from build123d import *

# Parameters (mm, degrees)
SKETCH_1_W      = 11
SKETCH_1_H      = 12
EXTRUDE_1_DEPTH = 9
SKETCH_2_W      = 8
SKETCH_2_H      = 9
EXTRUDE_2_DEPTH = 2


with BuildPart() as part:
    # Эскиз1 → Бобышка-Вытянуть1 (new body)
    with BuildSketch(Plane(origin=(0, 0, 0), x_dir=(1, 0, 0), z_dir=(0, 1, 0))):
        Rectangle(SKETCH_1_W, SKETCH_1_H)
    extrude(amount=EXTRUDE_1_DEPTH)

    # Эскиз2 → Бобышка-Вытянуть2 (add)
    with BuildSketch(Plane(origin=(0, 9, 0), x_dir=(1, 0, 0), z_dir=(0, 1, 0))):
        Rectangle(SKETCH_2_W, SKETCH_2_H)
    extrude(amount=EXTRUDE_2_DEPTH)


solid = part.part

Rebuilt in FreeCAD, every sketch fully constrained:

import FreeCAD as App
import Part
import Sketcher
Q = App.Units.Quantity


def add_polygon(sketch, points):
    """Adds a closed chain of lines whose ends are joined by coincident constraints."""
    first, n = sketch.GeometryCount, len(points)
    for a, b in zip(points, points[1:] + points[:1]):
        sketch.addGeometry(Part.LineSegment(App.Vector(*a, 0), App.Vector(*b, 0)), False)
    for i in range(n):
        sketch.addConstraint(Sketcher.Constraint("Coincident", first + i, 2, first + (i + 1) % n, 1))

doc = App.newDocument("Part")
body = doc.addObject("PartDesign::Body", "Body")

# Sketch on XZ plane
sketch1 = body.newObject("Sketcher::SketchObject", "Sketch")
sketch1.AttachmentSupport = (doc.getObject("XZ_Plane"), [""])
sketch1.MapMode = "FlatFace"
add_polygon(sketch1, [(-6, -6), (-6, 6), (6, 6), (6, -6)])  # lines 0-3
sketch1.addConstraint(Sketcher.Constraint("Vertical", 0))
sketch1.addConstraint(Sketcher.Constraint("Horizontal", 1))
sketch1.addConstraint(Sketcher.Constraint("Vertical", 2))
sketch1.addConstraint(Sketcher.Constraint("Horizontal", 3))
sketch1.addConstraint(Sketcher.Constraint("Symmetric", 0, 2, 2, 2, -1, 1))
sketch1.addConstraint(Sketcher.Constraint("DistanceX", 1, 1, 1, 2, Q("11 mm")))
sketch1.addConstraint(Sketcher.Constraint("DistanceY", 0, 1, 0, 2, Q("12 mm")))
pad1 = body.newObject("PartDesign::Pad", "Pad")
pad1.Profile = sketch1
pad1.Length = 9
pad1.Reversed = True

# Sketch on XZ plane
sketch2 = body.newObject("Sketcher::SketchObject", "Sketch001")
sketch2.AttachmentSupport = (doc.getObject("XZ_Plane"), [""])
sketch2.MapMode = "FlatFace"
sketch2.AttachmentOffset = App.Placement(App.Vector(0, 0, -9), App.Rotation())
add_polygon(sketch2, [(-4, -4), (-4, 4), (4, 4), (4, -4)])  # lines 0-3
sketch2.addConstraint(Sketcher.Constraint("Vertical", 0))
sketch2.addConstraint(Sketcher.Constraint("Horizontal", 1))
sketch2.addConstraint(Sketcher.Constraint("Vertical", 2))
sketch2.addConstraint(Sketcher.Constraint("Horizontal", 3))
sketch2.addConstraint(Sketcher.Constraint("Symmetric", 0, 2, 2, 2, -1, 1))
sketch2.addConstraint(Sketcher.Constraint("DistanceX", 1, 1, 1, 2, Q("8 mm")))
sketch2.addConstraint(Sketcher.Constraint("DistanceY", 0, 1, 0, 2, Q("9 mm")))
pad2 = body.newObject("PartDesign::Pad", "Pad001")
pad2.Profile = sketch2
pad2.Length = 2
pad2.Reversed = True

doc.recompute()
